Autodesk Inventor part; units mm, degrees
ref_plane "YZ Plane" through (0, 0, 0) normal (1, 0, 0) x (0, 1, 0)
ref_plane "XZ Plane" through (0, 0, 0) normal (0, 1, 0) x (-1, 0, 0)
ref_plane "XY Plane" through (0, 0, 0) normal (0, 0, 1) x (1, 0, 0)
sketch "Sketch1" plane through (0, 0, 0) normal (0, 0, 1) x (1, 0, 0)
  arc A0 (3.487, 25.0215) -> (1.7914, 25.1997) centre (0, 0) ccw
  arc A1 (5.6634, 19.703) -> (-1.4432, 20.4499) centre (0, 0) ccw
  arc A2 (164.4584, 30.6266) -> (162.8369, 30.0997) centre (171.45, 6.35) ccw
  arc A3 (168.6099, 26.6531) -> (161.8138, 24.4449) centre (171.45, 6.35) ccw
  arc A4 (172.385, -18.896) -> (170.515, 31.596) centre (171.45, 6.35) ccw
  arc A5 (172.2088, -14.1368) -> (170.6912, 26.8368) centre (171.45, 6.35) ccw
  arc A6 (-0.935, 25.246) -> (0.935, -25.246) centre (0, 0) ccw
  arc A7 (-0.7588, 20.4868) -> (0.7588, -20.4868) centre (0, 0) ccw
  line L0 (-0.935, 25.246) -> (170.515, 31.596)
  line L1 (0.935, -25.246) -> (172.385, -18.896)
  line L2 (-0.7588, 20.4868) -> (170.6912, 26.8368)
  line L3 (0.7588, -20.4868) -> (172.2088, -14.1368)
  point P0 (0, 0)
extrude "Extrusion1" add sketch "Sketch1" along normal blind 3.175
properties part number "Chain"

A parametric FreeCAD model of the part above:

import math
import FreeCAD as App
import Part
import Sketcher

V = App.Vector
Q = App.Units.Quantity

doc = App.newDocument("Part")
body = doc.addObject("PartDesign::Body", "Body")

sketch1 = doc.addObject("Sketcher::SketchObject", "Sketch")
body.addObject(sketch1)
sketch1.AttachmentSupport = (doc.XY_Plane, [""])
sketch1.MapMode = "FlatFace"
sketch1.addGeometry(Part.LineSegment(V(0.9, -25.2, 0), V(172.4, -18.9, 0)), False)
sketch1.addGeometry(Part.ArcOfCircle(Part.Circle(V(171.4, 6.3, 0), V(0, 0, 1), 25.3), math.radians(-88), math.radians(92)), False)
sketch1.addGeometry(Part.LineSegment(V(170.5, 31.6, 0), V(-0.9, 25.2, 0)), False)
sketch1.addGeometry(Part.ArcOfCircle(Part.Circle(V(0, 0, 0), V(0, 0, 1), 25.3), math.radians(92), math.radians(272)), False)
sketch1.addGeometry(Part.ArcOfCircle(Part.Circle(V(0, 0, 0), V(0, 0, 1), 20.5), math.radians(92.12), math.radians(94.04)), False)
sketch1.addGeometry(Part.LineSegment(V(-0.8, 20.5, 0), V(170.7, 26.8, 0)), False)
sketch1.addGeometry(Part.ArcOfCircle(Part.Circle(V(171.4, 6.3, 0), V(0, 0, 1), 20.5), math.radians(-88), math.radians(92)), False)
sketch1.addGeometry(Part.LineSegment(V(172.2, -14.1, 0), V(0.8, -20.5, 0)), False)
sketch1.addGeometry(Part.ArcOfCircle(Part.Circle(V(0, 0, 0), V(0, 0, 1), 20.5), math.radians(94), math.radians(272)), False)
sketch1.addConstraint(Sketcher.Constraint("Tangent", 0, 2, 1, 1))
sketch1.addConstraint(Sketcher.Constraint("Tangent", 1, 2, 2, 1))
sketch1.addConstraint(Sketcher.Constraint("Tangent", 2, 2, 3, 1))
sketch1.addConstraint(Sketcher.Constraint("Tangent", 3, 2, 0, 1))
sketch1.addConstraint(Sketcher.Constraint("Tangent", 4, 1, 5, 1))
sketch1.addConstraint(Sketcher.Constraint("Tangent", 5, 2, 6, 2))
sketch1.addConstraint(Sketcher.Constraint("Tangent", 6, 1, 7, 1))
sketch1.addConstraint(Sketcher.Constraint("Tangent", 7, 2, 8, 2))
sketch1.addConstraint(Sketcher.Constraint("Tangent", 8, 1, 4, 2))
sketch1.addConstraint(Sketcher.Constraint("Coincident", 3, 3, -1, 1))
sketch1.addConstraint(Sketcher.Constraint("Coincident", 4, 3, -1, 1))
sketch1.addConstraint(Sketcher.Constraint("Coincident", 6, 3, 1, 3))
sketch1.addConstraint(Sketcher.Constraint("Equal", 1, 3))
sketch1.addConstraint(Sketcher.Constraint("Equal", 4, 6))
sketch1.addConstraint(Sketcher.Constraint("Equal", 6, 8))
sketch1.addConstraint(Sketcher.Constraint("DistanceX", -1, 1, 1, 3, Q("6.75 in")))
sketch1.addConstraint(Sketcher.Constraint("DistanceY", -1, 1, 1, 3, Q("0.25 in")))
sketch1.addConstraint(Sketcher.Constraint("Radius", 1, Q("25.2633 mm")))
sketch1.addConstraint(Sketcher.Constraint("Radius", 4, Q("20.5008 mm")))
sketch1.addConstraint(Sketcher.Constraint("DistanceX", 8, 1, 2, 2, Q("0.02 in")))
pad1 = doc.addObject("PartDesign::Pad", "Pad")
body.addObject(pad1)
pad1.Profile = sketch1
pad1.Length = Q("0.125 in")

doc.recompute()
